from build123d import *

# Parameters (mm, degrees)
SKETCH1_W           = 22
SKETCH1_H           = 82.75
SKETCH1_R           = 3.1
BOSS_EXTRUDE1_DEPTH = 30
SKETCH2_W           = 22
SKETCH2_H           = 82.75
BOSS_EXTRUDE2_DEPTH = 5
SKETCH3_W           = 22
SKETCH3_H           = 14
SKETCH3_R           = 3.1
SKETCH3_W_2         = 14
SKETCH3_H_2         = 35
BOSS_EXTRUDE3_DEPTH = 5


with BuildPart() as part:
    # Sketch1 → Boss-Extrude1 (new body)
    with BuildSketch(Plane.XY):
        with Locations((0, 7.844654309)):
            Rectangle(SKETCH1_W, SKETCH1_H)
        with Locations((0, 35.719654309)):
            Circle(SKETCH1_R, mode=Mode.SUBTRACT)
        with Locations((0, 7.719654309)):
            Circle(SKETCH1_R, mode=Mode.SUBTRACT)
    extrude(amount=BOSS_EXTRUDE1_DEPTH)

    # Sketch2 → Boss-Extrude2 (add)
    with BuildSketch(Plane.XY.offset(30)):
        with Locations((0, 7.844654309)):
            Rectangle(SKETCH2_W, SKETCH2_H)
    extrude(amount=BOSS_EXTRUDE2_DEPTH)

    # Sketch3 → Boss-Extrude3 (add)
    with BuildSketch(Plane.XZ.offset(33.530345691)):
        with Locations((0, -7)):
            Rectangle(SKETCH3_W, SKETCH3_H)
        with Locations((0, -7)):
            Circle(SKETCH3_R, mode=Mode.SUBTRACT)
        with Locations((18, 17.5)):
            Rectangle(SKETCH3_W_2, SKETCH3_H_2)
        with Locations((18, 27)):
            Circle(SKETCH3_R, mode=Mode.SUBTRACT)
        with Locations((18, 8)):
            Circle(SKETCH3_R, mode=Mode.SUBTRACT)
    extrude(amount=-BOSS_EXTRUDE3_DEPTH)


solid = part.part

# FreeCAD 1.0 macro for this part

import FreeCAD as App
import Part
import Sketcher

V = App.Vector
Q = App.Units.Quantity

doc = App.newDocument("Part")
body = doc.addObject("PartDesign::Body", "Body")

# Sketch on XY plane
sketch1 = body.newObject("Sketcher::SketchObject", "Sketch")
sketch1.AttachmentSupport = (doc.getObject("XY_Plane"), [""])
sketch1.MapMode = "FlatFace"
sketch1.addGeometry([
    Part.LineSegment(V(-11, 49.219654, 0), V(-11, -33.530346, 0)),  # 0
    Part.LineSegment(V(-11, -33.530346, 0), V(11, -33.530346, 0)),  # 1
    Part.LineSegment(V(11, -33.530346, 0), V(11, 49.219654, 0)),  # 2
    Part.LineSegment(V(11, 49.219654, 0), V(-11, 49.219654, 0)),  # 3
    Part.Circle(V(0, 7.719654, 0), V(0, 0, 1), 3.1),  # 4
    Part.Circle(V(0, 35.719654, 0), V(0, 0, 1), 3.1),  # 5
], False)
sketch1.addConstraint([
    Sketcher.Constraint("Coincident", 0, 2, 1, 1),
    Sketcher.Constraint("Coincident", 1, 2, 2, 1),
    Sketcher.Constraint("Coincident", 2, 2, 3, 1),
    Sketcher.Constraint("Coincident", 3, 2, 0, 1),
    Sketcher.Constraint("Vertical", 0),
    Sketcher.Constraint("Horizontal", 1),
    Sketcher.Constraint("Vertical", 2),
    Sketcher.Constraint("Horizontal", 3),
    Sketcher.Constraint("Equal", 4, 5),
    Sketcher.Constraint("PointOnObject", 4, 3, -2),
    Sketcher.Constraint("PointOnObject", 5, 3, -2),
    Sketcher.Constraint("Diameter", 4, Q("6.2 mm")),
    Sketcher.Constraint("DistanceX", 1, 1, 1, 2, Q("22 mm")),
    Sketcher.Constraint("DistanceX", 0, 2, -1, 1, Q("11 mm")),
    Sketcher.Constraint("DistanceY", 4, 3, 5, 3, Q("28 mm")),
    Sketcher.Constraint("DistanceY", 0, 2, 0, 1, Q("82.75 mm")),
    Sketcher.Constraint("DistanceY", 5, 3, 2, 2, Q("13.5 mm")),
    Sketcher.Constraint("DistanceY", -1, 1, 4, 3, Q("7.719654 mm")),
])
pad1 = body.newObject("PartDesign::Pad", "Pad")
pad1.Profile = sketch1
pad1.Length = 30

# Sketch on XY plane
sketch2 = body.newObject("Sketcher::SketchObject", "Sketch001")
sketch2.AttachmentSupport = (doc.getObject("XY_Plane"), [""])
sketch2.MapMode = "FlatFace"
sketch2.AttachmentOffset = App.Placement(V(0, 0, 30), App.Rotation())
sketch2.addGeometry([
    Part.LineSegment(V(-11, 49.219654, 0), V(-11, -33.530346, 0)),
    Part.LineSegment(V(-11, -33.530346, 0), V(11, -33.530346, 0)),
    Part.LineSegment(V(11, -33.530346, 0), V(11, 49.219654, 0)),
    Part.LineSegment(V(11, 49.219654, 0), V(-11, 49.219654, 0)),
], False)
sketch2.addConstraint([
    Sketcher.Constraint("Coincident", 0, 2, 1, 1),
    Sketcher.Constraint("Coincident", 1, 2, 2, 1),
    Sketcher.Constraint("Coincident", 2, 2, 3, 1),
    Sketcher.Constraint("Coincident", 3, 2, 0, 1),
    Sketcher.Constraint("Vertical", 0),
    Sketcher.Constraint("Horizontal", 1),
    Sketcher.Constraint("Vertical", 2),
    Sketcher.Constraint("Horizontal", 3),
    Sketcher.Constraint("DistanceX", 1, 1, 1, 2, Q("22 mm")),
    Sketcher.Constraint("DistanceX", 0, 2, -1, 1, Q("11 mm")),
    Sketcher.Constraint("DistanceY", 0, 2, 0, 1, Q("82.75 mm")),
    Sketcher.Constraint("DistanceY", 0, 2, -1, 1, Q("33.530346 mm")),
])
pad2 = body.newObject("PartDesign::Pad", "Pad001")
pad2.Profile = sketch2
pad2.Length = 5

# Sketch on XZ plane
sketch3 = body.newObject("Sketcher::SketchObject", "Sketch002")
sketch3.AttachmentSupport = (doc.getObject("XZ_Plane"), [""])
sketch3.MapMode = "FlatFace"
sketch3.AttachmentOffset = App.Placement(V(0, 0, 33.530346), App.Rotation())
sketch3.addGeometry([
    Part.LineSegment(V(-11, 0, 0), V(-11, -14, 0)),  # 0
    Part.LineSegment(V(-11, -14, 0), V(11, -14, 0)),  # 1
    Part.LineSegment(V(11, -14, 0), V(11, 0, 0)),  # 2
    Part.LineSegment(V(11, 0, 0), V(-11, 0, 0)),  # 3
    Part.Circle(V(0, -7, 0), V(0, 0, 1), 3.1),  # 4
    Part.LineSegment(V(11, 35, 0), V(11, 0, 0)),  # 5
    Part.LineSegment(V(11, 0, 0), V(25, 0, 0)),  # 6
    Part.LineSegment(V(25, 0, 0), V(25, 35, 0)),  # 7
    Part.LineSegment(V(25, 35, 0), V(11, 35, 0)),  # 8
    Part.Circle(V(18, 8, 0), V(0, 0, 1), 3.1),  # 9
    Part.Circle(V(18, 27, 0), V(0, 0, 1), 3.1),  # 10
], False)
sketch3.addConstraint([
    Sketcher.Constraint("Coincident", 0, 2, 1, 1),
    Sketcher.Constraint("Coincident", 1, 2, 2, 1),
    Sketcher.Constraint("Coincident", 2, 2, 3, 1),
    Sketcher.Constraint("Coincident", 3, 2, 0, 1),
    Sketcher.Constraint("Coincident", 5, 2, 6, 1),
    Sketcher.Constraint("Coincident", 6, 2, 7, 1),
    Sketcher.Constraint("Coincident", 7, 2, 8, 1),
    Sketcher.Constraint("Coincident", 8, 2, 5, 1),
    Sketcher.Constraint("Vertical", 0),
    Sketcher.Constraint("Horizontal", 1),
    Sketcher.Constraint("Vertical", 2),
    Sketcher.Constraint("Horizontal", 3),
    Sketcher.Constraint("Vertical", 5),
    Sketcher.Constraint("Horizontal", 6),
    Sketcher.Constraint("Vertical", 7),
    Sketcher.Constraint("Horizontal", 8),
    Sketcher.Constraint("Coincident", 5, 2, 2, 2),
    Sketcher.Constraint("Equal", 4, 9),
    Sketcher.Constraint("Equal", 9, 10),
    Sketcher.Constraint("Symmetric", 2, 2, 3, 2, -1, 1),
    Sketcher.Constraint("PointOnObject", 4, 3, -2),
    Sketcher.Constraint("Vertical", 9, 3, 10, 3),
    Sketcher.Constraint("Equal", 8, 0),
    Sketcher.Constraint("Diameter", 4, Q("6.2 mm")),
    Sketcher.Constraint("DistanceX", 1, 1, 1, 2, Q("22 mm")),
    Sketcher.Constraint("DistanceX", 6, 1, 6, 2, Q("14 mm")),
    Sketcher.Constraint("DistanceY", 5, 2, 5, 1, Q("35 mm")),
    Sketcher.Constraint("DistanceY", 4, 3, -1, 1, Q("7 mm")),
    Sketcher.Constraint("DistanceX", -1, 1, 9, 3, Q("18 mm")),
    Sketcher.Constraint("DistanceY", -1, 1, 9, 3, Q("8 mm")),
    Sketcher.Constraint("DistanceY", -1, 1, 10, 3, Q("27 mm")),
])
pad3 = body.newObject("PartDesign::Pad", "Pad002")
pad3.Profile = sketch3
pad3.Length = 5
pad3.Reversed = True

doc.recompute()
